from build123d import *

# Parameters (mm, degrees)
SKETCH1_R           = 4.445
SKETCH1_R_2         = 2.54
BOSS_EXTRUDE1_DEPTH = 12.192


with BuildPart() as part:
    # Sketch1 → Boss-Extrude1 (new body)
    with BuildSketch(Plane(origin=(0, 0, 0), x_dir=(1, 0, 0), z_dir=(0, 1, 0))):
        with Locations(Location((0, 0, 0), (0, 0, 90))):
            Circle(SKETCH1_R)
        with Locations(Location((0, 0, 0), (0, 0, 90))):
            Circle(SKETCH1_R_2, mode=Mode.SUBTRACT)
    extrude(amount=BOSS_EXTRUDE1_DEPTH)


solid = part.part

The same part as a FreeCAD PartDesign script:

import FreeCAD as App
import Part
import Sketcher

V = App.Vector
Q = App.Units.Quantity

doc = App.newDocument("Part")
body = doc.addObject("PartDesign::Body", "Body")

# Sketch on XZ plane
sketch1 = doc.addObject("Sketcher::SketchObject", "Sketch")
body.addObject(sketch1)
sketch1.AttachmentSupport = (doc.XZ_Plane, [""])
sketch1.MapMode = "FlatFace"
sketch1.addGeometry(Part.Circle(V(0, 0, 0), V(0, 0, 1), 4.4), False)
sketch1.addGeometry(Part.Circle(V(0, 0, 0), V(0, 0, 1), 2.5), False)
sketch1.addConstraint(Sketcher.Constraint("Coincident", 0, 3, -1, 1))
sketch1.addConstraint(Sketcher.Constraint("Coincident", 1, 3, -1, 1))
sketch1.addConstraint(Sketcher.Constraint("Diameter", 1, Q("0.2 in")))
sketch1.addConstraint(Sketcher.Constraint("Diameter", 0, Q("0.35 in")))
pad1 = doc.addObject("PartDesign::Pad", "Pad")
body.addObject(pad1)
pad1.Profile = sketch1
pad1.Length = Q("0.48 in")
pad1.Reversed = True

doc.recompute()
